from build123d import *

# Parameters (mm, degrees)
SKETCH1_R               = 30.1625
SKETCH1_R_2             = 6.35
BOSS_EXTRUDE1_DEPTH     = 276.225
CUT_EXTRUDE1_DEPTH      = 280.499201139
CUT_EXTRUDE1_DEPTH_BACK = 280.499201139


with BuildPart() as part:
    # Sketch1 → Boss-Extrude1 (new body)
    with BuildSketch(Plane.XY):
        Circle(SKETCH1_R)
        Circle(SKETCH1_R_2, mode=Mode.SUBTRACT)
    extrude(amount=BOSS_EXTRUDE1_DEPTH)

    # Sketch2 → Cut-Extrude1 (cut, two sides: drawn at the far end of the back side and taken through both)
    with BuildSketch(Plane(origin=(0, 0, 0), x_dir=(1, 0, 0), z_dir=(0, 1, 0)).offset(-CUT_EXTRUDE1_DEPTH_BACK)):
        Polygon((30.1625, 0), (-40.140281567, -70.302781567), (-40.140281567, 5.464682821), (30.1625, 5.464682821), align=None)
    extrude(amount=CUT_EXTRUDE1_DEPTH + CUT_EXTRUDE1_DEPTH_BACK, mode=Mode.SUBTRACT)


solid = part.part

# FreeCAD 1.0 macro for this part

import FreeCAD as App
import Part
import Sketcher
from FreeCAD import Vector
Q = App.Units.Quantity

doc = App.newDocument("Part")
params = doc.addObject("Spreadsheet::Sheet", "Params")
for row, (alias, value) in enumerate([
    ("sketch1_diameter", "0.5 in"),
    ("sketch1_diameter2", "2.375 in"),
    ("pad1_length", "10.875 in"),
], start=1):
    params.set(f"A{row}", alias)
    params.set(f"B{row}", "=" + value)
    params.setAlias(f"B{row}", alias)

body = doc.addObject("PartDesign::Body", "Body")

# Sketch on XY plane
sketch1 = body.newObject("Sketcher::SketchObject", "Sketch")
sketch1.AttachmentSupport = (doc.getObject("XY_Plane"), [""])
sketch1.MapMode = "FlatFace"
sketch1.addGeometry([
    Part.Circle(Vector(0, 0, 0), Vector(0, 0, 1), 30),
    Part.Circle(Vector(0, 0, 0), Vector(0, 0, 1), 6),
], False)
sketch1.addConstraint([
    Sketcher.Constraint("Coincident", 0, 3, -1, 1),
    Sketcher.Constraint("Coincident", 1, 3, -1, 1),
    Sketcher.Constraint("Diameter", 1, Q("0.5 in")),
    Sketcher.Constraint("Diameter", 0, Q("2.375 in")),
])
sketch1.setExpression("Constraints[2]", "Params.sketch1_diameter")
sketch1.setExpression("Constraints[3]", "Params.sketch1_diameter2")
pad1 = body.newObject("PartDesign::Pad", "Pad")
pad1.Profile = sketch1
pad1.setExpression("Length", "Params.pad1_length")

# Sketch on XZ plane
sketch2 = body.newObject("Sketcher::SketchObject", "Sketch001")
sketch2.AttachmentSupport = (doc.getObject("XZ_Plane"), [""])
sketch2.MapMode = "FlatFace"
sketch2.addGeometry([
    Part.LineSegment(Vector(-40, 70, 0), Vector(30, 0, 0)),
    Part.LineSegment(Vector(30, 0, 0), Vector(30, -5, 0)),
    Part.LineSegment(Vector(30, -5, 0), Vector(-40, -5, 0)),
    Part.LineSegment(Vector(-40, -5, 0), Vector(-40, 70, 0)),
], False)
sketch2.addConstraint([
    Sketcher.Constraint("Coincident", 0, 2, 1, 1),
    Sketcher.Constraint("Coincident", 1, 2, 2, 1),
    Sketcher.Constraint("Coincident", 2, 2, 3, 1),
    Sketcher.Constraint("Coincident", 3, 2, 0, 1),
    Sketcher.Constraint("Vertical", 1),
    Sketcher.Constraint("Horizontal", 2),
    Sketcher.Constraint("Vertical", 3),
    Sketcher.Constraint("PointOnObject", 0, 2, -1),
    Sketcher.Constraint("Angle", 0, Q("-45 deg")),
    Sketcher.Constraint("DistanceX", -1, 1, 0, 2, Q("1.1875 in")),
    Sketcher.Constraint("DistanceX", 2, 2, 2, 1, Q("70.302782 mm")),
    Sketcher.Constraint("DistanceY", 1, 2, 1, 1, Q("5.464683 mm")),
])
pocket1 = body.newObject("PartDesign::Pocket", "Pocket")
pocket1.Profile = sketch2
pocket1.Type = "ThroughAll"
pocket1.Midplane = True

doc.recompute()
